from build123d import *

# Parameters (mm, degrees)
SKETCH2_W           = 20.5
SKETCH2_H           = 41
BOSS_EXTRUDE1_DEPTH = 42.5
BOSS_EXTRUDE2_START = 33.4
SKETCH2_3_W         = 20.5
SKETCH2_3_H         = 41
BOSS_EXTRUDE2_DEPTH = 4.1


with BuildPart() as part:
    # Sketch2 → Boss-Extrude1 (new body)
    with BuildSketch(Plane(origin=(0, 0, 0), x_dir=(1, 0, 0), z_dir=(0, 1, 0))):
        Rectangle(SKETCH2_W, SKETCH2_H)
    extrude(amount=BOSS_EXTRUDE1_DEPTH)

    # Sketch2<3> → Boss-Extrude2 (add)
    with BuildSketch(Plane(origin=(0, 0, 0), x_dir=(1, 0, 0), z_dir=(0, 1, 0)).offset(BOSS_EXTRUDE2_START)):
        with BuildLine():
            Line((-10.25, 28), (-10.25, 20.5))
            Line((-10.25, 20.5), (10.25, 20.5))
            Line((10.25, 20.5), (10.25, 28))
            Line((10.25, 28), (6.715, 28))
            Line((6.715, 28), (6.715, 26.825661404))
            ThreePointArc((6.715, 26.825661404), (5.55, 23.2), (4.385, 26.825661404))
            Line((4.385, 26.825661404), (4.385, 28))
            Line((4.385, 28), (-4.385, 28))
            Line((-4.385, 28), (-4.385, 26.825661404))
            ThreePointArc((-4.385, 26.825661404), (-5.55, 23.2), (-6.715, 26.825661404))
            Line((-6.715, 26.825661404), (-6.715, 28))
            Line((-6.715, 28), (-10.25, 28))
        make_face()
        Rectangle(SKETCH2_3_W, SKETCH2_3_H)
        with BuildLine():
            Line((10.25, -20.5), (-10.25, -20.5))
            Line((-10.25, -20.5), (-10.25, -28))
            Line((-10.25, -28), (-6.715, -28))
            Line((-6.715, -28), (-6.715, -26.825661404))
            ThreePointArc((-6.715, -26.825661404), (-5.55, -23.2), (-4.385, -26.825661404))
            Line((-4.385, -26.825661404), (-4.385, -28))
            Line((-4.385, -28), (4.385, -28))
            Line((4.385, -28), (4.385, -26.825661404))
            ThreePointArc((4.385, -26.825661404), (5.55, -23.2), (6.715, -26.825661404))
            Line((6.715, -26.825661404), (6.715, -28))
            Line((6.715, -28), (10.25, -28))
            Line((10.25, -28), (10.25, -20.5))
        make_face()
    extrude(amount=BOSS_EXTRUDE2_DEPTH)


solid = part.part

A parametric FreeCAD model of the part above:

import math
import FreeCAD as App
import Part
import Sketcher
from FreeCAD import Vector

doc = App.newDocument("Part")
body = doc.addObject("PartDesign::Body", "Body")

sketch1 = body.newObject("Sketcher::SketchObject", "Sketch")
sketch1.AttachmentSupport = (doc.getObject("XZ_Plane"), [""])
sketch1.MapMode = "FlatFace"
sketch1.addGeometry([
    Part.LineSegment(Vector(-10.25, -20.5, 0), Vector(-10.25, 20.5, 0)),
    Part.LineSegment(Vector(-10.25, 20.5, 0), Vector(10.25, 20.5, 0)),
    Part.LineSegment(Vector(10.25, 20.5, 0), Vector(10.25, -20.5, 0)),
    Part.LineSegment(Vector(10.25, -20.5, 0), Vector(-10.25, -20.5, 0)),
], False)
sketch1.addConstraint([
    Sketcher.Constraint("Coincident", 0, 2, 1, 1),
    Sketcher.Constraint("Coincident", 1, 2, 2, 1),
    Sketcher.Constraint("Coincident", 2, 2, 3, 1),
    Sketcher.Constraint("Coincident", 3, 2, 0, 1),
    Sketcher.Constraint("Vertical", 0),
    Sketcher.Constraint("Horizontal", 1),
    Sketcher.Constraint("Vertical", 2),
    Sketcher.Constraint("Horizontal", 3),
    Sketcher.Constraint("Symmetric", 0, 2, 2, 2, -1, 1),
    Sketcher.Constraint("DistanceY", 0, 1, 0, 2, 41.0),
    Sketcher.Constraint("DistanceX", 1, 1, 1, 2, 20.5),
])
pad1 = body.newObject("PartDesign::Pad", "Pad")
pad1.Profile = sketch1
pad1.Length = 42.5
pad1.Reversed = True

sketch2 = body.newObject("Sketcher::SketchObject", "Sketch001")
sketch2.AttachmentSupport = (doc.getObject("XZ_Plane"), [""])
sketch2.MapMode = "FlatFace"
sketch2.AttachmentOffset = App.Placement(Vector(0, 0, -33.4), App.Rotation())
sketch2.addGeometry([
    Part.LineSegment(Vector(-10.25, -28, 0), Vector(-10.25, 28, 0)),
    Part.LineSegment(Vector(-10.25, 28, 0), Vector(-6.715, 28, 0)),
    Part.LineSegment(Vector(-6.715, 28, 0), Vector(-6.715, 26.825661, 0)),
    Part.ArcOfCircle(Part.Circle(Vector(-5.55, 25.2, 0), Vector(0, 0, 1), 2), math.radians(125.626572), math.radians(414.373428)),
    Part.LineSegment(Vector(-4.385, 26.825661, 0), Vector(-4.385, 28, 0)),
    Part.LineSegment(Vector(-4.385, 28, 0), Vector(4.385, 28, 0)),
    Part.LineSegment(Vector(4.385, 28, 0), Vector(4.385, 26.825661, 0)),
    Part.ArcOfCircle(Part.Circle(Vector(5.55, 25.2, 0), Vector(0, 0, 1), 2), math.radians(125.626572), math.radians(414.373428)),
    Part.LineSegment(Vector(6.715, 26.825661, 0), Vector(6.715, 28, 0)),
    Part.LineSegment(Vector(6.715, 28, 0), Vector(10.25, 28, 0)),
    Part.LineSegment(Vector(10.25, 28, 0), Vector(10.25, -28, 0)),
    Part.LineSegment(Vector(10.25, -28, 0), Vector(6.715, -28, 0)),
    Part.LineSegment(Vector(6.715, -28, 0), Vector(6.715, -26.825661, 0)),
    Part.ArcOfCircle(Part.Circle(Vector(5.55, -25.2, 0), Vector(0, 0, 1), 2), math.radians(-54.373428), math.radians(234.373428)),
    Part.LineSegment(Vector(4.385, -26.825661, 0), Vector(4.385, -28, 0)),
    Part.LineSegment(Vector(4.385, -28, 0), Vector(-4.385, -28, 0)),
    Part.LineSegment(Vector(-4.385, -28, 0), Vector(-4.385, -26.825661, 0)),
    Part.ArcOfCircle(Part.Circle(Vector(-5.55, -25.2, 0), Vector(0, 0, 1), 2), math.radians(-54.373428), math.radians(234.373428)),
    Part.LineSegment(Vector(-6.715, -26.825661, 0), Vector(-6.715, -28, 0)),
    Part.LineSegment(Vector(-6.715, -28, 0), Vector(-10.25, -28, 0)),
], False)
sketch2.addConstraint([
    Sketcher.Constraint("Coincident", 0, 2, 1, 1),
    Sketcher.Constraint("Coincident", 1, 2, 2, 1),
    Sketcher.Constraint("Coincident", 2, 2, 3, 1),
    Sketcher.Constraint("Coincident", 3, 2, 4, 1),
    Sketcher.Constraint("Coincident", 4, 2, 5, 1),
    Sketcher.Constraint("Coincident", 5, 2, 6, 1),
    Sketcher.Constraint("Coincident", 6, 2, 7, 1),
    Sketcher.Constraint("Coincident", 7, 2, 8, 1),
    Sketcher.Constraint("Coincident", 8, 2, 9, 1),
    Sketcher.Constraint("Coincident", 9, 2, 10, 1),
    Sketcher.Constraint("Coincident", 10, 2, 11, 1),
    Sketcher.Constraint("Coincident", 11, 2, 12, 1),
    Sketcher.Constraint("Coincident", 12, 2, 13, 1),
    Sketcher.Constraint("Coincident", 13, 2, 14, 1),
    Sketcher.Constraint("Coincident", 14, 2, 15, 1),
    Sketcher.Constraint("Coincident", 15, 2, 16, 1),
    Sketcher.Constraint("Coincident", 16, 2, 17, 1),
    Sketcher.Constraint("Coincident", 17, 2, 18, 1),
    Sketcher.Constraint("Coincident", 18, 2, 19, 1),
    Sketcher.Constraint("Coincident", 19, 2, 0, 1),
    Sketcher.Constraint("Vertical", 0),
    Sketcher.Constraint("Horizontal", 1),
    Sketcher.Constraint("Vertical", 2),
    Sketcher.Constraint("Vertical", 4),
    Sketcher.Constraint("Horizontal", 5),
    Sketcher.Constraint("Vertical", 6),
    Sketcher.Constraint("Vertical", 8),
    Sketcher.Constraint("Horizontal", 9),
    Sketcher.Constraint("Vertical", 10),
    Sketcher.Constraint("Horizontal", 11),
    Sketcher.Constraint("Vertical", 12),
    Sketcher.Constraint("Vertical", 14),
    Sketcher.Constraint("Horizontal", 15),
    Sketcher.Constraint("Vertical", 16),
    Sketcher.Constraint("Vertical", 18),
    Sketcher.Constraint("Horizontal", 19),
    Sketcher.Constraint("Equal", 3, 7),
    Sketcher.Constraint("Equal", 7, 13),
    Sketcher.Constraint("Equal", 13, 17),
    Sketcher.Constraint("Symmetric", 3, 3, 13, 3, -1, 1),
    Sketcher.Constraint("Symmetric", 7, 3, 17, 3, -1, 1),
    Sketcher.Constraint("Symmetric", 0, 2, 10, 2, -1, 1),
    Sketcher.Constraint("Symmetric", 4, 2, 14, 2, -1, 1),
    Sketcher.Constraint("Symmetric", 8, 2, 18, 2, -1, 1),
    Sketcher.Constraint("Symmetric", 3, 3, 7, 3, -2),
    Sketcher.Constraint("Symmetric", 1, 2, 8, 2, -2),
    Sketcher.Constraint("Horizontal", 2, 2, 3, 2),
    Sketcher.Constraint("Horizontal", 1, 2, 4, 2),
    Sketcher.Constraint("Horizontal", 3, 2, 6, 2),
    Sketcher.Constraint("Horizontal", 12, 2, 13, 2),
    Sketcher.Constraint("Horizontal", 13, 2, 16, 2),
    Sketcher.Constraint("Radius", 3, 2.0),
    Sketcher.Constraint("DistanceY", 0, 1, 0, 2, 56.0),
    Sketcher.Constraint("DistanceX", 5, 1, 5, 2, 8.77),
    Sketcher.Constraint("DistanceY", -1, 1, 3, 3, 25.2),
    Sketcher.Constraint("DistanceX", 3, 3, 7, 3, 11.1),
    Sketcher.Constraint("DistanceX", 0, 2, 3, 3, 4.7),
])
pad2 = body.newObject("PartDesign::Pad", "Pad001")
pad2.Profile = sketch2
pad2.Length = 4.1
pad2.Reversed = True

doc.recompute()
